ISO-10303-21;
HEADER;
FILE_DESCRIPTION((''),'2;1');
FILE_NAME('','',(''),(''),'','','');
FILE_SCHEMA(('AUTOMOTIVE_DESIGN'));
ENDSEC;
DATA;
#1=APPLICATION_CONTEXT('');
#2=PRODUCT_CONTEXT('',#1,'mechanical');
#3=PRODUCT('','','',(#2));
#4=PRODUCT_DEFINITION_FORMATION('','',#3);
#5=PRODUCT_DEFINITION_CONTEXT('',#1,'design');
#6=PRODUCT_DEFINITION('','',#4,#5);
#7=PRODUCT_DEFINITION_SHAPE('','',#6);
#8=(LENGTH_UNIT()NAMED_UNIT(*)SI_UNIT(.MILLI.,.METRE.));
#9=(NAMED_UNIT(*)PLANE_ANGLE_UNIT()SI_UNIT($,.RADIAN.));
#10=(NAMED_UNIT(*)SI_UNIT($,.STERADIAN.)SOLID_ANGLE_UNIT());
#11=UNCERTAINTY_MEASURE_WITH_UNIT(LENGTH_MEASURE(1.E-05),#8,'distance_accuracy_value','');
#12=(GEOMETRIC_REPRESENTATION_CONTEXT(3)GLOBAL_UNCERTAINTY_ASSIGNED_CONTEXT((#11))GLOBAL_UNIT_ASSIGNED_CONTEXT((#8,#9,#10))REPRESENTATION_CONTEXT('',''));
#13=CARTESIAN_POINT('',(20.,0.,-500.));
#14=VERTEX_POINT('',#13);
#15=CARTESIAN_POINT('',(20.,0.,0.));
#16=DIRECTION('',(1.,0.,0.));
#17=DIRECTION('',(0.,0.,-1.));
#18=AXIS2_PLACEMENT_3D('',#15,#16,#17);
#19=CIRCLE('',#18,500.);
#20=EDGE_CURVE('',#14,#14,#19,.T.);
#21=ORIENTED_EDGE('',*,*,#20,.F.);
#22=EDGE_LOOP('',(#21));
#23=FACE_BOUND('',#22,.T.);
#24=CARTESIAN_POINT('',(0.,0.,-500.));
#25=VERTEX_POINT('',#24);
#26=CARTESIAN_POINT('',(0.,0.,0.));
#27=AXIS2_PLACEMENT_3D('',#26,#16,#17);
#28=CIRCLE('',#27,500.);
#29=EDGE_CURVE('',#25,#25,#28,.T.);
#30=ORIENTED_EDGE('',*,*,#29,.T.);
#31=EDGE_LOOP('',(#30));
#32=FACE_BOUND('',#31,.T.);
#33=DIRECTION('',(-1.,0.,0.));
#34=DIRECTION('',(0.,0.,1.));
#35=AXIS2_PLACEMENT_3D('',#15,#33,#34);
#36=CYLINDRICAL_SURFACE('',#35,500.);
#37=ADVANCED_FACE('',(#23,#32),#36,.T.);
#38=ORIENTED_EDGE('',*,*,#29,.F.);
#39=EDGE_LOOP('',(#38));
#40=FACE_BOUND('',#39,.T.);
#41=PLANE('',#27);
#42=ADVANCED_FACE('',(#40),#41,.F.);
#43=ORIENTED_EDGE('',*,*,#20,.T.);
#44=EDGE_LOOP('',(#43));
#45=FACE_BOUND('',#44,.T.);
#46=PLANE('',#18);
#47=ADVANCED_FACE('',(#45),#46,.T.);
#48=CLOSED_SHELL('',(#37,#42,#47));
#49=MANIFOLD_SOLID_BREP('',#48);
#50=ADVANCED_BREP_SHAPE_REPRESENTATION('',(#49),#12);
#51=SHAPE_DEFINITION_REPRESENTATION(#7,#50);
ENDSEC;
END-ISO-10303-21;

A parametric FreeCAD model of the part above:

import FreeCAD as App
import Part
import Sketcher

V = App.Vector
Q = App.Units.Quantity

doc = App.newDocument("Part")
body = doc.addObject("PartDesign::Body", "Body")

# Sketch on YZ plane
sketch1 = doc.addObject("Sketcher::SketchObject", "Sketch")
body.addObject(sketch1)
sketch1.AttachmentSupport = (doc.YZ_Plane, [""])
sketch1.MapMode = "FlatFace"
sketch1.addGeometry(Part.Circle(V(0, 0, 0), V(0, 0, 1), 500), False)
sketch1.addConstraint(Sketcher.Constraint("Coincident", 0, 3, -1, 1))
sketch1.addConstraint(Sketcher.Constraint("Diameter", 0, Q("1000 mm")))
pad1 = doc.addObject("PartDesign::Pad", "Pad")
body.addObject(pad1)
pad1.Profile = sketch1
pad1.Length = 20

doc.recompute()
